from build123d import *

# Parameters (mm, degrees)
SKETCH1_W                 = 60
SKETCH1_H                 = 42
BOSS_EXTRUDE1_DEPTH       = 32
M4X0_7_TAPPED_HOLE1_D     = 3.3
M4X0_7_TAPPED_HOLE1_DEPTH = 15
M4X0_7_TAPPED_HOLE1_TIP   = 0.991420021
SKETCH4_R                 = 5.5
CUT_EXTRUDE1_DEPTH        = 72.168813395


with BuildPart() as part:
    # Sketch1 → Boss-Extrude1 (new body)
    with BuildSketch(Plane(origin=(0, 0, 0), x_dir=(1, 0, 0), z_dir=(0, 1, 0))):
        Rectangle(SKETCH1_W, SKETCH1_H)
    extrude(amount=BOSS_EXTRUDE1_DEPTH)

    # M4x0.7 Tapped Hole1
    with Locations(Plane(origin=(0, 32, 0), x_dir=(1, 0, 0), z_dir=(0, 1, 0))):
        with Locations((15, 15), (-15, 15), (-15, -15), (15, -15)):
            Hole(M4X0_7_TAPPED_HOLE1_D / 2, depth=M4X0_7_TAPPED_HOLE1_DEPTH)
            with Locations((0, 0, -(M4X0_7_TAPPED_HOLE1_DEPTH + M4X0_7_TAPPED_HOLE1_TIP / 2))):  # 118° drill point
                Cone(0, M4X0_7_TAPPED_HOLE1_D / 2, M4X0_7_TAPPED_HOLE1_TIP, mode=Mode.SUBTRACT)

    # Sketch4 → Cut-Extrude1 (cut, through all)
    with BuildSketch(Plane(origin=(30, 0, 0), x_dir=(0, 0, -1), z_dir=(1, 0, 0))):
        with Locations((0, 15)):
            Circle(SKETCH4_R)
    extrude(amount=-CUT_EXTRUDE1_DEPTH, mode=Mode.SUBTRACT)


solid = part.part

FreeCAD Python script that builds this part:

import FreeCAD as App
import Part
import Sketcher

V = App.Vector
Q = App.Units.Quantity


def add_polygon(sketch, points):
    """Adds a closed chain of lines whose ends are joined by coincident constraints."""
    first, n = sketch.GeometryCount, len(points)
    for a, b in zip(points, points[1:] + points[:1]):
        sketch.addGeometry(Part.LineSegment(App.Vector(*a, 0), App.Vector(*b, 0)), False)
    for i in range(n):
        sketch.addConstraint(Sketcher.Constraint("Coincident", first + i, 2, first + (i + 1) % n, 1))

doc = App.newDocument("Part")
body = doc.addObject("PartDesign::Body", "Body")

# Sketch on XZ plane
sketch1 = body.newObject("Sketcher::SketchObject", "Sketch")
sketch1.AttachmentSupport = (doc.getObject("XZ_Plane"), [""])
sketch1.MapMode = "FlatFace"
add_polygon(sketch1, [(-30, -21), (-30, 21), (30, 21), (30, -21)])  # lines 0-3
sketch1.addConstraint([
    Sketcher.Constraint("Vertical", 0),
    Sketcher.Constraint("Horizontal", 1),
    Sketcher.Constraint("Vertical", 2),
    Sketcher.Constraint("Horizontal", 3),
    Sketcher.Constraint("Symmetric", 0, 2, 2, 2, -1, 1),
    Sketcher.Constraint("DistanceX", 1, 1, 1, 2, Q("60 mm")),
    Sketcher.Constraint("DistanceY", 0, 1, 0, 2, Q("42 mm")),
])
pad1 = body.newObject("PartDesign::Pad", "Pad")
pad1.Profile = sketch1
pad1.Length = 32
pad1.Reversed = True

# Sketch on XZ plane
sketch2 = body.newObject("Sketcher::SketchObject", "Sketch001")
sketch2.AttachmentSupport = (doc.getObject("XZ_Plane"), [""])
sketch2.MapMode = "FlatFace"
sketch2.AttachmentOffset = App.Placement(V(0, 0, -32), App.Rotation())
sketch2.addGeometry([
    Part.Circle(V(15, -15, 0), V(0, 0, 1), 1.6),
    Part.Circle(V(-15, -15, 0), V(0, 0, 1), 1.6),
    Part.Circle(V(-15, 15, 0), V(0, 0, 1), 1.6),
    Part.Circle(V(15, 15, 0), V(0, 0, 1), 1.6),
], False)
sketch2.addConstraint([
    Sketcher.Constraint("Equal", 0, 1),
    Sketcher.Constraint("Equal", 1, 2),
    Sketcher.Constraint("Equal", 2, 3),
    Sketcher.Constraint("Symmetric", 0, 3, 2, 3, -1, 1),
    Sketcher.Constraint("Symmetric", 1, 3, 3, 3, -1, 1),
    Sketcher.Constraint("Symmetric", 0, 3, 1, 3, -2),
    Sketcher.Constraint("Diameter", 0, Q("3.3 mm")),
    Sketcher.Constraint("DistanceX", -1, 1, 0, 3, Q("15 mm")),
    Sketcher.Constraint("DistanceY", 0, 3, -1, 1, Q("15 mm")),
])
doc.recompute()
hole = body.newObject("PartDesign::Hole", "Hole")
hole.Profile = sketch2
hole.ThreadType = "None"
hole.Diameter = 3.3
hole.DepthType = "Dimension"
hole.Depth = 15
hole.DrillPoint = "Angled"
hole.DrillPointAngle = 118
hole.Reversed = True

# Sketch on YZ plane
sketch3 = body.newObject("Sketcher::SketchObject", "Sketch002")
sketch3.AttachmentSupport = (doc.getObject("YZ_Plane"), [""])
sketch3.MapMode = "FlatFace"
sketch3.AttachmentOffset = App.Placement(V(0, 0, 30), App.Rotation())
sketch3.addGeometry(Part.Circle(V(15, 0, 0), V(0, 0, 1), 6), False)
sketch3.addConstraint([
    Sketcher.Constraint("PointOnObject", 0, 3, -1),
    Sketcher.Constraint("Diameter", 0, Q("11 mm")),
    Sketcher.Constraint("DistanceX", -1, 1, 0, 3, Q("15 mm")),
])
pocket1 = body.newObject("PartDesign::Pocket", "Pocket")
pocket1.Profile = sketch3
pocket1.Type = "ThroughAll"

doc.recompute()
